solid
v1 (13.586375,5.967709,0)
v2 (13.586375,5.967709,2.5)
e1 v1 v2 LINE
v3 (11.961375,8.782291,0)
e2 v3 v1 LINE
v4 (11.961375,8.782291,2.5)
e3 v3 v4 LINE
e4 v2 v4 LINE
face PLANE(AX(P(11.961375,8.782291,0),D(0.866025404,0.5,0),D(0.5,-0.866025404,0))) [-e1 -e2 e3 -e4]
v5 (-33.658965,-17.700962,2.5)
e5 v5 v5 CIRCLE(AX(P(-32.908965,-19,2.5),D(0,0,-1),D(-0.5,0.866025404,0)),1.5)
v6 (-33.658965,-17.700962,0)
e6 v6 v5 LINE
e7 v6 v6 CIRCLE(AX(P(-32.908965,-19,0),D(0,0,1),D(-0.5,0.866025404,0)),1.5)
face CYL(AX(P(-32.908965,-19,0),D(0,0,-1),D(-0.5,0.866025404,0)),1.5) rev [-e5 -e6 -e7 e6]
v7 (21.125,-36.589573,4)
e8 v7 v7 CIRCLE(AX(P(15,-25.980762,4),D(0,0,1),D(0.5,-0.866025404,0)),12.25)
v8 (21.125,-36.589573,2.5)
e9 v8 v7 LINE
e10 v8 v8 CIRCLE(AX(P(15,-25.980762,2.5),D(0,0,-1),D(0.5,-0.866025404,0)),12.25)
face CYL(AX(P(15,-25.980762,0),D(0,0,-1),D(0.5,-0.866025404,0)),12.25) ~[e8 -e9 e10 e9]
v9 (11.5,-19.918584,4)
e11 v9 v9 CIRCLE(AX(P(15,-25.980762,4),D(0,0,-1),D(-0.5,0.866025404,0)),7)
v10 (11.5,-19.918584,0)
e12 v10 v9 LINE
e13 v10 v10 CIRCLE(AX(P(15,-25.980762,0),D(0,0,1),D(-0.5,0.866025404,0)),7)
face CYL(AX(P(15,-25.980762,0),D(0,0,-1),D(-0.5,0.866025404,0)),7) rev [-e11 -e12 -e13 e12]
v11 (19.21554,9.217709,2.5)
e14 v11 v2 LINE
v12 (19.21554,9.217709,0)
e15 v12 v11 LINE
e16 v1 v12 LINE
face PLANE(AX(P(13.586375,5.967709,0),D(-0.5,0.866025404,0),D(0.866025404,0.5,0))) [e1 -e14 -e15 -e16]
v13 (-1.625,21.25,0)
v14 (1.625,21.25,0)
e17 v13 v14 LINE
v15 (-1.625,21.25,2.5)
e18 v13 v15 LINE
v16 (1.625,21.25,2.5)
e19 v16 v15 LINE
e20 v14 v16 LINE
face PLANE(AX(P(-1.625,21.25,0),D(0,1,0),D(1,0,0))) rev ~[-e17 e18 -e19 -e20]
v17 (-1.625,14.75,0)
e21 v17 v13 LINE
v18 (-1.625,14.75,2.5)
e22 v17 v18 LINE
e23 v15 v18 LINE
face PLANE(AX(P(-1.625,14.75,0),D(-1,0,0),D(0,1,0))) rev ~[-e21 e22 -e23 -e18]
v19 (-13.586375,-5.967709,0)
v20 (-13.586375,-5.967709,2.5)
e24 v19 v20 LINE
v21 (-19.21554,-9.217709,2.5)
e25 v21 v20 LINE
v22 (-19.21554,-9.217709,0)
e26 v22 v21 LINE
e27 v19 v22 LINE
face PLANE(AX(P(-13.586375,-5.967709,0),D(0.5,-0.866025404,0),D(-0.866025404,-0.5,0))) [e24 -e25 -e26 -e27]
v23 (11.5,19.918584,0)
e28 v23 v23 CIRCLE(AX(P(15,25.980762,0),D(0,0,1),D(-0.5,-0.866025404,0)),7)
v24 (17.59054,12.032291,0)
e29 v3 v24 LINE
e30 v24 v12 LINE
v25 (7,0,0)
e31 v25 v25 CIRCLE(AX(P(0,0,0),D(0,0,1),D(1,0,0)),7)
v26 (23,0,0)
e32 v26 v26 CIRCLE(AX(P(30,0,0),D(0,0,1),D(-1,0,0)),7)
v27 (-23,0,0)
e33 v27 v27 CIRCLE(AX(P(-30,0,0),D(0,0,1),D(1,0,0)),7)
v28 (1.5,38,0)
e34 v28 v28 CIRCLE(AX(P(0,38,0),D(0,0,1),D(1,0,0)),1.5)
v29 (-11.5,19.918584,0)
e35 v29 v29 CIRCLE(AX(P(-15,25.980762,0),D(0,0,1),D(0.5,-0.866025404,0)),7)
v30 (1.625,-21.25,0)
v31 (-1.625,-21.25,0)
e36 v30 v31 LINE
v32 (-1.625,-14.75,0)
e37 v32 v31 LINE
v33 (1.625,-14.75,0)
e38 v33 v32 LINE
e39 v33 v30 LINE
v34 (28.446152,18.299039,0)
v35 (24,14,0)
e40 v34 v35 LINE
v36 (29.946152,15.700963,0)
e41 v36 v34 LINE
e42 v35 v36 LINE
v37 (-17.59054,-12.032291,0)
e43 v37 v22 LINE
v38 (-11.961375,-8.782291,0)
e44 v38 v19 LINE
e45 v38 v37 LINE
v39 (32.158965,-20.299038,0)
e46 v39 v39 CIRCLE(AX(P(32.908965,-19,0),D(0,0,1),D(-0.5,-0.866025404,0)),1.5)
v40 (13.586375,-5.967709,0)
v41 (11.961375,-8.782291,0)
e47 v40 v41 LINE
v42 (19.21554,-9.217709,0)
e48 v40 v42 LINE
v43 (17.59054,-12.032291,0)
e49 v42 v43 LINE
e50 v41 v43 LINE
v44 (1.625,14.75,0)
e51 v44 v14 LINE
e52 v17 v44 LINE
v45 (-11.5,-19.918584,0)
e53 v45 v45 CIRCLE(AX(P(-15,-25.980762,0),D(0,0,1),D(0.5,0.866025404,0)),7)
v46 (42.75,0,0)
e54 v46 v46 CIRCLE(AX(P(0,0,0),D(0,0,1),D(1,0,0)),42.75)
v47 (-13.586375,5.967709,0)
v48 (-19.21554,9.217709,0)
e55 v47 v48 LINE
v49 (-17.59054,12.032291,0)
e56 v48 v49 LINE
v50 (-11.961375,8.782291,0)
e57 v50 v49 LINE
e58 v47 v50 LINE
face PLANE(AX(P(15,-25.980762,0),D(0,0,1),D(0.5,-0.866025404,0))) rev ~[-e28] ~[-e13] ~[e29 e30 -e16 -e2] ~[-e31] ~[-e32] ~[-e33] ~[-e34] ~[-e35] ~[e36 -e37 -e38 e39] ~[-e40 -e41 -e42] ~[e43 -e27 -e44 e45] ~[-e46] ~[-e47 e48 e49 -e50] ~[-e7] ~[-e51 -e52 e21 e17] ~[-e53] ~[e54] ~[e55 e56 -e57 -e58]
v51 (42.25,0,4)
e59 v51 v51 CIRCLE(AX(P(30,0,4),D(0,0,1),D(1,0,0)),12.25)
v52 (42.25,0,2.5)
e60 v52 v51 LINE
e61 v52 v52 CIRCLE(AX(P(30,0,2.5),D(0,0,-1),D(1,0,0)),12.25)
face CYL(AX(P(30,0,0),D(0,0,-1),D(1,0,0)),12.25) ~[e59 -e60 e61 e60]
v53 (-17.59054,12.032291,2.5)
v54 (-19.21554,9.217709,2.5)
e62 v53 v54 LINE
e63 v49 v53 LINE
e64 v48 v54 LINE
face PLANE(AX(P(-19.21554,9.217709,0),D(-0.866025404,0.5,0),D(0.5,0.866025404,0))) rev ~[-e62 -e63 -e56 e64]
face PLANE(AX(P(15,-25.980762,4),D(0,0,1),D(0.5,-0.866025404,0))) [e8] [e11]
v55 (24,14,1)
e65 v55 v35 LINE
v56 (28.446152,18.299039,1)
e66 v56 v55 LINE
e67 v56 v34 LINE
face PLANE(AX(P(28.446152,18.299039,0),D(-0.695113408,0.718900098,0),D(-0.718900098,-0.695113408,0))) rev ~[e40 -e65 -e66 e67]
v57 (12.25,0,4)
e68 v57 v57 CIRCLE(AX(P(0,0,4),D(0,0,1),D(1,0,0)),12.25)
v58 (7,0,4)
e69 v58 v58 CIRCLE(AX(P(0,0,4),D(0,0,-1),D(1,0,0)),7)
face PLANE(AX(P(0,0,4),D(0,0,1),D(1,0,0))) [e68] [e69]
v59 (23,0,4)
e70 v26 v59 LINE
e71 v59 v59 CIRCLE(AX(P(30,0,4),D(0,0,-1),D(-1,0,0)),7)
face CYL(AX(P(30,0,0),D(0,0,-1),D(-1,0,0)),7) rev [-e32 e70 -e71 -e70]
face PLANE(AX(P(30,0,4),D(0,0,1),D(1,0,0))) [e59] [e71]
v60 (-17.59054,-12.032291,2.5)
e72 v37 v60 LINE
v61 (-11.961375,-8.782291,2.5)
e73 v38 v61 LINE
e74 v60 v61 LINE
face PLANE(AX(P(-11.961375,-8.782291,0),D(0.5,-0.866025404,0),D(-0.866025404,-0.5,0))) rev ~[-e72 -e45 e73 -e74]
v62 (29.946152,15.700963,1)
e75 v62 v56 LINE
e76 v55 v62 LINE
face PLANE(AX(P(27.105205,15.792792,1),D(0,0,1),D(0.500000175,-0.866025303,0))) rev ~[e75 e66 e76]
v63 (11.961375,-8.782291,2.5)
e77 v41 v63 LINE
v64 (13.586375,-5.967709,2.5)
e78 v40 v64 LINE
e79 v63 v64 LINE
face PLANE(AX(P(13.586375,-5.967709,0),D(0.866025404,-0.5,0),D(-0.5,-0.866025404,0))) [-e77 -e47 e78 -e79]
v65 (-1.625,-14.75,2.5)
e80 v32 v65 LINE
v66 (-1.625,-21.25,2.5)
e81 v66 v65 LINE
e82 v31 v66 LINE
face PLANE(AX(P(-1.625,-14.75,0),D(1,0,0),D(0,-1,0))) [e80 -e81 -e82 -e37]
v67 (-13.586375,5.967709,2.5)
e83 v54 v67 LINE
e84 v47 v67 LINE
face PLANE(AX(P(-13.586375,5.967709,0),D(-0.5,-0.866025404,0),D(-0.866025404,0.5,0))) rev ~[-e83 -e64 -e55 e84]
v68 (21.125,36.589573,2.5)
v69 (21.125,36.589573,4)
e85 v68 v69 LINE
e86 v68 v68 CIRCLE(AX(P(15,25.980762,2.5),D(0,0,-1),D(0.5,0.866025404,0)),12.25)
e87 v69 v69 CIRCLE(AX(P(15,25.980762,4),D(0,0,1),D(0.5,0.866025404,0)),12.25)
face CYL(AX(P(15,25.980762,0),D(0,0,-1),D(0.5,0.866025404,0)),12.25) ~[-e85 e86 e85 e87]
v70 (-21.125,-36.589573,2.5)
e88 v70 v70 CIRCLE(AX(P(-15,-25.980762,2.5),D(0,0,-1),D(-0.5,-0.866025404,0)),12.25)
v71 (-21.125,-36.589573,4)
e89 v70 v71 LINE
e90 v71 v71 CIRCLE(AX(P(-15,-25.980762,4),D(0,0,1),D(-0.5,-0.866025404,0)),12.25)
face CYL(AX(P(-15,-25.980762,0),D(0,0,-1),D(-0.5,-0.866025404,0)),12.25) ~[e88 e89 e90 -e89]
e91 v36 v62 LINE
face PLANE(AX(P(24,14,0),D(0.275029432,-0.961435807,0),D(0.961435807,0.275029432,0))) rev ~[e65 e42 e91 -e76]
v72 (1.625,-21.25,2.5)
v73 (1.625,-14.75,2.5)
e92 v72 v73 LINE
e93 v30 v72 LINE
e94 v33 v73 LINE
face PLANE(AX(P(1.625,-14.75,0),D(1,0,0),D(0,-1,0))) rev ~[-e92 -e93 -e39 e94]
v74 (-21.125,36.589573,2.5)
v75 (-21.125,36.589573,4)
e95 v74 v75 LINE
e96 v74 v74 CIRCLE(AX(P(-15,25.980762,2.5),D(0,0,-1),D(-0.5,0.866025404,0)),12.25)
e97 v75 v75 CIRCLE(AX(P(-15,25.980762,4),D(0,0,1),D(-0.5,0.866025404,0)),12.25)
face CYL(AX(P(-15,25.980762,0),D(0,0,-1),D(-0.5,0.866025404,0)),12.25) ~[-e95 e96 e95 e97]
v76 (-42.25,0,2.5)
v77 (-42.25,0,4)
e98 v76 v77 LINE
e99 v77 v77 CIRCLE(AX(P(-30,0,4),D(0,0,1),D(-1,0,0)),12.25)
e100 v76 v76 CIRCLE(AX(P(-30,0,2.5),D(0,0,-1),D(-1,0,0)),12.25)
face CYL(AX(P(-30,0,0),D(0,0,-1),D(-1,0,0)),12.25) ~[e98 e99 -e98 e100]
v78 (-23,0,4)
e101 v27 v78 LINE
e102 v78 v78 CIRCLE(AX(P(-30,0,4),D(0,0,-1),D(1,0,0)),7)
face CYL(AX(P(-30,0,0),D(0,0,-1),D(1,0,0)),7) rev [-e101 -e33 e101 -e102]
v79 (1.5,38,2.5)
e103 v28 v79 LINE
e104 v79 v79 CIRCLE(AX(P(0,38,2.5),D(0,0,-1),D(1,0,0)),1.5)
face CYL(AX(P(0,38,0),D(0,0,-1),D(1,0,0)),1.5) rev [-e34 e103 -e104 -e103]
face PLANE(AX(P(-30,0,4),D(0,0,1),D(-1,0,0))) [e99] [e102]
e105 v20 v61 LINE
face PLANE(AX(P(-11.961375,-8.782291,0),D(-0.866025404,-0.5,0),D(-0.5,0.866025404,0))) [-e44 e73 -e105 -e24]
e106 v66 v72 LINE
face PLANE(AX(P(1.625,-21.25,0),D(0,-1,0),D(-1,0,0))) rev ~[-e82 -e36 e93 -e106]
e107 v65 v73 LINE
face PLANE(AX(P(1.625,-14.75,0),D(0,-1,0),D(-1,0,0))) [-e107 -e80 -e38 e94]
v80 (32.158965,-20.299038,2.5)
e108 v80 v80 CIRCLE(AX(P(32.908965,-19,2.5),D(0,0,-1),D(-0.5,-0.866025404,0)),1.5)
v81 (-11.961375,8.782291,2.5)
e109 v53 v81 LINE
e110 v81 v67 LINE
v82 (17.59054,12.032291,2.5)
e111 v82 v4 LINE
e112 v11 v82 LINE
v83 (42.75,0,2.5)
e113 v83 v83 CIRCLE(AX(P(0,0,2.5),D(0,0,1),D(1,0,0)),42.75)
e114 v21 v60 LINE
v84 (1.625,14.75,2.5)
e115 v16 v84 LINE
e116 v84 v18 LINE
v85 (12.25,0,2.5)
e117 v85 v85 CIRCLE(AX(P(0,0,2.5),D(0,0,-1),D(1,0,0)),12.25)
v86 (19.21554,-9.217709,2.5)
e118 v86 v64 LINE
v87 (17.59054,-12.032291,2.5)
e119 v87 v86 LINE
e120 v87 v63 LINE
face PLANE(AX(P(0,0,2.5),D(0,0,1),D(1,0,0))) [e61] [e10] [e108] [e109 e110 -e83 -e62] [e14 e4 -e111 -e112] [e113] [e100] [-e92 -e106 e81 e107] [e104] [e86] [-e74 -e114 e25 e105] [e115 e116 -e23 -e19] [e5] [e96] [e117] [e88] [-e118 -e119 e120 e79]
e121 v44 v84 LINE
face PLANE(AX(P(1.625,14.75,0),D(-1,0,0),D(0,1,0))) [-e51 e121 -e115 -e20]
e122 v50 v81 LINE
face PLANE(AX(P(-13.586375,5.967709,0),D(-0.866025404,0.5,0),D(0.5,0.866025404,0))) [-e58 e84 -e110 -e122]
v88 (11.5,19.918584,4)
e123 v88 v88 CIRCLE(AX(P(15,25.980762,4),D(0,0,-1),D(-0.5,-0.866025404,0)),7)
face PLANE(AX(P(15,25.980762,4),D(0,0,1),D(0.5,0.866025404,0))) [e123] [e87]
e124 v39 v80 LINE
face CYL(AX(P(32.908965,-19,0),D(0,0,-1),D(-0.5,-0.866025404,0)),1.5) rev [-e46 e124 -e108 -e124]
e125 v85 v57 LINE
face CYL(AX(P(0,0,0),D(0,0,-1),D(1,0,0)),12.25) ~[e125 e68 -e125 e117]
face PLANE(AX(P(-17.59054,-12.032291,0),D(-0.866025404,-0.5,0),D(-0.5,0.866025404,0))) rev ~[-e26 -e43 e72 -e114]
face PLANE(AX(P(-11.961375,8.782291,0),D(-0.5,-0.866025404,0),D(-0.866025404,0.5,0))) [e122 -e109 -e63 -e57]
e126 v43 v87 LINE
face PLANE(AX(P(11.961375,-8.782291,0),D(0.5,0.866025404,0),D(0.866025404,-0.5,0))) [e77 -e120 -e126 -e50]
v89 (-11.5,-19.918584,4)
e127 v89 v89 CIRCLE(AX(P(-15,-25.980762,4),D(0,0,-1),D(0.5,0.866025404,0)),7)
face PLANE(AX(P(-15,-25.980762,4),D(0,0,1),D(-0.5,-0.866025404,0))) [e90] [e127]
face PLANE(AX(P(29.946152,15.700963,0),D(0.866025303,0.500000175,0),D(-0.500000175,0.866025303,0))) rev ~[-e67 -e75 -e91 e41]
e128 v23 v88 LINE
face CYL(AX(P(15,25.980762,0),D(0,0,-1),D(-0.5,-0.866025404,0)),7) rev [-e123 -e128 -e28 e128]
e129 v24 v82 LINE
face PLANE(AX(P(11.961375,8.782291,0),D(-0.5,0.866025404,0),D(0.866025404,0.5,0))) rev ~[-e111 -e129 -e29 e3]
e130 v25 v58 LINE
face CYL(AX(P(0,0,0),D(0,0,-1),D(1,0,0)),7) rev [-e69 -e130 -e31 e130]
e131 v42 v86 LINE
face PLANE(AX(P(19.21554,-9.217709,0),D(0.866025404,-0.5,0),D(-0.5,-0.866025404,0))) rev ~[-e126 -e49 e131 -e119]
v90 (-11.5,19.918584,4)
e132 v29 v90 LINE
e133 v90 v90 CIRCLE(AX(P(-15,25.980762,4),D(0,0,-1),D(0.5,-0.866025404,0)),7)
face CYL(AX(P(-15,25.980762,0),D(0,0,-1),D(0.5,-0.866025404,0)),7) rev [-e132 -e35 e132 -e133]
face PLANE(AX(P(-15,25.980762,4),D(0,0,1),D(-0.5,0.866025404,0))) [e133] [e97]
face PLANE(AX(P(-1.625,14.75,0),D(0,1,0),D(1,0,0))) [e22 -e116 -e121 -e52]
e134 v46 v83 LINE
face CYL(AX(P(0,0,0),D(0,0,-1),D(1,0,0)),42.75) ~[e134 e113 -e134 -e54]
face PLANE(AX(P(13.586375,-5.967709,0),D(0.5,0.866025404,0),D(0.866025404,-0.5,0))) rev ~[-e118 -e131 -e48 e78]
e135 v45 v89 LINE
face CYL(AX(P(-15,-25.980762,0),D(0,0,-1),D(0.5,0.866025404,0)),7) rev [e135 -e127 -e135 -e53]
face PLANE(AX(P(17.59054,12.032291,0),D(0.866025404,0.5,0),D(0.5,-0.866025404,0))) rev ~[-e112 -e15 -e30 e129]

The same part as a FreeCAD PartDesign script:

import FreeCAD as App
import Part
import Sketcher
Q = App.Units.Quantity

doc = App.newDocument("Part")
body = doc.addObject("PartDesign::Body", "Body")

sketch1 = doc.addObject("Sketcher::SketchObject", "Sketch")
body.addObject(sketch1)
sketch1.AttachmentSupport = (doc.XY_Plane, [""])
sketch1.MapMode = "FlatFace"
sketch1.addGeometry(Part.Circle(App.Vector(0, 0, 0), App.Vector(0, 0, 1), 43), False)
sketch1.addConstraint([
    Sketcher.Constraint("Coincident", 0, 3, -1, 1),
    Sketcher.Constraint("Diameter", 0, Q("85.5 mm")),
])
pad1 = doc.addObject("PartDesign::Pad", "Pad")
body.addObject(pad1)
pad1.Profile = sketch1
pad1.Length = 2.5

sketch2 = doc.addObject("Sketcher::SketchObject", "Sketch001")
body.addObject(sketch2)
sketch2.AttachmentSupport = (doc.XY_Plane, [""])
sketch2.MapMode = "FlatFace"
sketch2.addGeometry(Part.Circle(App.Vector(0, 0, 0), App.Vector(0, 0, 1), 12), False)
sketch2.addConstraint([
    Sketcher.Constraint("Coincident", 0, 3, -1, 1),
    Sketcher.Constraint("Diameter", 0, Q("24.5 mm")),
])
pad2 = doc.addObject("PartDesign::Pad", "Pad001")
body.addObject(pad2)
pad2.Profile = sketch2
pad2.Length = 4

sketch3 = doc.addObject("Sketcher::SketchObject", "Sketch002")
body.addObject(sketch3)
sketch3.AttachmentSupport = (doc.XY_Plane, [""])
sketch3.MapMode = "FlatFace"
sketch3.addGeometry(Part.Circle(App.Vector(30, 0, 0), App.Vector(0, 0, 1), 12), False)
sketch3.addConstraint([
    Sketcher.Constraint("PointOnObject", 0, 3, -1),
    Sketcher.Constraint("Diameter", 0, Q("24.5 mm")),
    Sketcher.Constraint("DistanceX", -1, 1, 0, 3, Q("30 mm")),
])
pad3 = doc.addObject("PartDesign::Pad", "Pad002")
body.addObject(pad3)
pad3.Profile = sketch3
pad3.Length = 4
doc.recompute()

polarpattern = doc.addObject("PartDesign::PolarPattern", "PolarPattern")
body.addObject(polarpattern)
polarpattern.Originals = [pad3]
polarpattern.Axis = (doc.Z_Axis, [""])
polarpattern.Angle = 360
polarpattern.Occurrences = 6
body.Tip = polarpattern

sketch4 = doc.addObject("Sketcher::SketchObject", "Sketch003")
body.addObject(sketch4)
sketch4.AttachmentSupport = (doc.XY_Plane, [""])
sketch4.MapMode = "FlatFace"
sketch4.addGeometry(Part.Circle(App.Vector(0, 0, 0), App.Vector(0, 0, 1), 7), False)
sketch4.addConstraint([
    Sketcher.Constraint("Coincident", 0, 3, -1, 1),
    Sketcher.Constraint("Diameter", 0, Q("14 mm")),
])
pocket1 = doc.addObject("PartDesign::Pocket", "Pocket")
body.addObject(pocket1)
pocket1.Profile = sketch4
pocket1.Type = "ThroughAll"
pocket1.Reversed = True

sketch5 = doc.addObject("Sketcher::SketchObject", "Sketch004")
body.addObject(sketch5)
sketch5.AttachmentSupport = (doc.XY_Plane, [""])
sketch5.MapMode = "FlatFace"
sketch5.addGeometry(Part.Circle(App.Vector(-30, 0, 0), App.Vector(0, 0, 1), 7), False)
sketch5.addConstraint([
    Sketcher.Constraint("PointOnObject", 0, 3, -1),
    Sketcher.Constraint("Diameter", 0, Q("14 mm")),
    Sketcher.Constraint("DistanceX", 0, 3, -1, 1, Q("30 mm")),
])
pocket2 = doc.addObject("PartDesign::Pocket", "Pocket001")
body.addObject(pocket2)
pocket2.Profile = sketch5
pocket2.Type = "ThroughAll"
pocket2.Reversed = True
doc.recompute()

polarpattern2 = doc.addObject("PartDesign::PolarPattern", "PolarPattern001")
body.addObject(polarpattern2)
polarpattern2.Originals = [pocket2]
polarpattern2.Axis = (doc.Z_Axis, [""])
polarpattern2.Angle = 360
polarpattern2.Occurrences = 6
body.Tip = polarpattern2

sketch6 = doc.addObject("Sketcher::SketchObject", "Sketch005")
body.addObject(sketch6)
sketch6.AttachmentSupport = (doc.XY_Plane, [""])
sketch6.MapMode = "FlatFace"
sketch6.addGeometry(Part.Circle(App.Vector(0, 38, 0), App.Vector(0, 0, 1), 1.5), False)
sketch6.addConstraint([
    Sketcher.Constraint("PointOnObject", 0, 3, -2),
    Sketcher.Constraint("Diameter", 0, Q("3 mm")),
    Sketcher.Constraint("DistanceY", -1, 1, 0, 3, Q("38 mm")),
])
pocket3 = doc.addObject("PartDesign::Pocket", "Pocket002")
body.addObject(pocket3)
pocket3.Profile = sketch6
pocket3.Type = "ThroughAll"
pocket3.Reversed = True
doc.recompute()

polarpattern3 = doc.addObject("PartDesign::PolarPattern", "PolarPattern002")
body.addObject(polarpattern3)
polarpattern3.Originals = [pocket3]
polarpattern3.Axis = (doc.Z_Axis, [""])
polarpattern3.Angle = 360
polarpattern3.Occurrences = 3
body.Tip = polarpattern3

sketch7 = doc.addObject("Sketcher::SketchObject", "Sketch006")
body.addObject(sketch7)
sketch7.AttachmentSupport = (doc.XY_Plane, [""])
sketch7.MapMode = "FlatFace"
sketch7.addGeometry([
    Part.LineSegment(App.Vector(-1.6, 21.2, 0), App.Vector(-1.6, 14.8, 0)),
    Part.LineSegment(App.Vector(-1.6, 14.8, 0), App.Vector(1.6, 14.8, 0)),
    Part.LineSegment(App.Vector(1.6, 14.8, 0), App.Vector(1.6, 21.2, 0)),
    Part.LineSegment(App.Vector(1.6, 21.2, 0), App.Vector(-1.6, 21.2, 0)),
], False)
sketch7.addConstraint([
    Sketcher.Constraint("Coincident", 0, 2, 1, 1),
    Sketcher.Constraint("Coincident", 1, 2, 2, 1),
    Sketcher.Constraint("Coincident", 2, 2, 3, 1),
    Sketcher.Constraint("Coincident", 3, 2, 0, 1),
    Sketcher.Constraint("Vertical", 0),
    Sketcher.Constraint("Horizontal", 1),
    Sketcher.Constraint("Vertical", 2),
    Sketcher.Constraint("Horizontal", 3),
    Sketcher.Constraint("DistanceY", 0, 2, 0, 1, Q("6.5 mm")),
    Sketcher.Constraint("DistanceX", 1, 1, 1, 2, Q("3.25 mm")),
    Sketcher.Constraint("DistanceY", -1, 1, 0, 2, Q("14.75 mm")),
    Sketcher.Constraint("DistanceX", 0, 2, -1, 1, Q("1.625 mm")),
])
pocket4 = doc.addObject("PartDesign::Pocket", "Pocket003")
body.addObject(pocket4)
pocket4.Profile = sketch7
pocket4.Type = "ThroughAll"
pocket4.Reversed = True
doc.recompute()

polarpattern4 = doc.addObject("PartDesign::PolarPattern", "PolarPattern003")
body.addObject(polarpattern4)
polarpattern4.Originals = [pocket4]
polarpattern4.Axis = (doc.Z_Axis, [""])
polarpattern4.Angle = 360
polarpattern4.Occurrences = 6
body.Tip = polarpattern4

sketch8 = doc.addObject("Sketcher::SketchObject", "Sketch007")
body.addObject(sketch8)
sketch8.AttachmentSupport = (doc.XY_Plane, [""])
sketch8.MapMode = "FlatFace"
sketch8.addGeometry([
    Part.LineSegment(App.Vector(24, 14, 0), App.Vector(29.9, 15.7, 0)),
    Part.LineSegment(App.Vector(29.9, 15.7, 0), App.Vector(28.4, 18.3, 0)),
    Part.LineSegment(App.Vector(28.4, 18.3, 0), App.Vector(24, 14, 0)),
], False)
sketch8.addConstraint([
    Sketcher.Constraint("Coincident", 0, 2, 1, 1),
    Sketcher.Constraint("Coincident", 1, 2, 2, 1),
    Sketcher.Constraint("Coincident", 2, 2, 0, 1),
    Sketcher.Constraint("Equal", 0, 2),
    Sketcher.Constraint("Angle", 1, Q("120.000012 deg")),
    Sketcher.Constraint("Distance", 1, Q("3 mm")),
    Sketcher.Constraint("DistanceX", -1, 1, 2, 2, Q("24 mm")),
    Sketcher.Constraint("DistanceY", -1, 1, 2, 2, Q("14 mm")),
    Sketcher.Constraint("Distance", 0, Q("6.184658 mm")),
])
pocket5 = doc.addObject("PartDesign::Pocket", "Pocket004")
body.addObject(pocket5)
pocket5.Profile = sketch8
pocket5.Length = 2
pocket5.Midplane = True

doc.recompute()
